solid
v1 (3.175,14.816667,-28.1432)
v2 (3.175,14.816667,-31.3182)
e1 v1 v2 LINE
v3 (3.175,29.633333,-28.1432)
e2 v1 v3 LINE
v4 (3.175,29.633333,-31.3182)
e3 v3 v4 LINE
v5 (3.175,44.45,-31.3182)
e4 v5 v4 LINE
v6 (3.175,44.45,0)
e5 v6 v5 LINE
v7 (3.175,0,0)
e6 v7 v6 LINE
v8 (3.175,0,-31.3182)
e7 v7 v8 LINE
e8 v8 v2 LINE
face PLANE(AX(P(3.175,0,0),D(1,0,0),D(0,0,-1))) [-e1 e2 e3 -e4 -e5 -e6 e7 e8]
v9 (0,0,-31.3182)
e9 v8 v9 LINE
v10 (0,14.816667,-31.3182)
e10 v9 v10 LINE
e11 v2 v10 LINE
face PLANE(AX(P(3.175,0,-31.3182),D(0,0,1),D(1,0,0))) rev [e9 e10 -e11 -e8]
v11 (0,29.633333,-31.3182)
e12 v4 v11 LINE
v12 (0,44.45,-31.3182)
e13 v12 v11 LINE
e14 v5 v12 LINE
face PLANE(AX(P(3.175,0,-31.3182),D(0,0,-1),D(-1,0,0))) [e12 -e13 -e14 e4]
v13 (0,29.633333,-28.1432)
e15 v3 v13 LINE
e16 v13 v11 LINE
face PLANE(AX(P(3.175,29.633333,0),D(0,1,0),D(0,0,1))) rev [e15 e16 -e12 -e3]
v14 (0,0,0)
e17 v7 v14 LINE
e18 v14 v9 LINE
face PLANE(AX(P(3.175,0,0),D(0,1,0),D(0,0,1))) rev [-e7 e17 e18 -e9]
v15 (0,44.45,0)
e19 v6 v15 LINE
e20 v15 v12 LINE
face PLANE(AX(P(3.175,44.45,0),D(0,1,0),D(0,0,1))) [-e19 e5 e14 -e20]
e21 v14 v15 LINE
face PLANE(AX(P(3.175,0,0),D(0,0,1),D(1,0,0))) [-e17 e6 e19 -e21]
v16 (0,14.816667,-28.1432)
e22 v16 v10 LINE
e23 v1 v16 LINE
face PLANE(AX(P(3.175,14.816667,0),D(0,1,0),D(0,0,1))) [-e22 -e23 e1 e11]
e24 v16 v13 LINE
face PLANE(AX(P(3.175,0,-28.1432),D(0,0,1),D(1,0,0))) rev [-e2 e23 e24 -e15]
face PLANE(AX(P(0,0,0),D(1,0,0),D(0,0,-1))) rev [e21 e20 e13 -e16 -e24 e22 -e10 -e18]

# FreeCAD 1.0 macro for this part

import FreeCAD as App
import Part
import Sketcher
from FreeCAD import Vector
Q = App.Units.Quantity


def add_polygon(sketch, points):
    """Adds a closed chain of lines whose ends are joined by coincident constraints."""
    first, n = sketch.GeometryCount, len(points)
    for a, b in zip(points, points[1:] + points[:1]):
        sketch.addGeometry(Part.LineSegment(App.Vector(*a, 0), App.Vector(*b, 0)), False)
    for i in range(n):
        sketch.addConstraint(Sketcher.Constraint("Coincident", first + i, 2, first + (i + 1) % n, 1))

doc = App.newDocument("Part")
body = doc.addObject("PartDesign::Body", "Body")

sketch1 = body.newObject("Sketcher::SketchObject", "Sketch")
sketch1.AttachmentSupport = (doc.getObject("YZ_Plane"), [""])
sketch1.MapMode = "FlatFace"
add_polygon(sketch1, [(44.5, 0), (0, 0), (0, -28.1), (0, -31.3), (14.8, -31.3), (14.8, -28.1), (29.6, -28.1), (29.6, -31.3), (44.5, -31.3), (44.5, -28.1)])
sketch1.addConstraint([
    Sketcher.Constraint("Horizontal", 0),
    Sketcher.Constraint("Vertical", 1),
    Sketcher.Constraint("Vertical", 2),
    Sketcher.Constraint("Horizontal", 3),
    Sketcher.Constraint("Vertical", 4),
    Sketcher.Constraint("Horizontal", 5),
    Sketcher.Constraint("Vertical", 6),
    Sketcher.Constraint("Horizontal", 7),
    Sketcher.Constraint("Vertical", 8),
    Sketcher.Constraint("Vertical", 9),
    Sketcher.Constraint("Coincident", 0, 2, -1, 1),
    Sketcher.Constraint("Horizontal", 1, 2, 4, 2),
    Sketcher.Constraint("Horizontal", 3, 2, 6, 2),
    Sketcher.Constraint("Horizontal", 5, 2, 8, 2),
    Sketcher.Constraint("Equal", 3, 5),
    Sketcher.Constraint("Equal", 5, 7),
    Sketcher.Constraint("DistanceX", 0, 2, 0, 1, Q("1.75 in")),
    Sketcher.Constraint("DistanceY", 1, 2, 1, 1, Q("1.108 in")),
    Sketcher.Constraint("DistanceY", 2, 2, 2, 1, Q("0.125 in")),
])
pad1 = body.newObject("PartDesign::Pad", "Pad")
pad1.Profile = sketch1
pad1.Length = Q("0.125 in")

doc.recompute()
